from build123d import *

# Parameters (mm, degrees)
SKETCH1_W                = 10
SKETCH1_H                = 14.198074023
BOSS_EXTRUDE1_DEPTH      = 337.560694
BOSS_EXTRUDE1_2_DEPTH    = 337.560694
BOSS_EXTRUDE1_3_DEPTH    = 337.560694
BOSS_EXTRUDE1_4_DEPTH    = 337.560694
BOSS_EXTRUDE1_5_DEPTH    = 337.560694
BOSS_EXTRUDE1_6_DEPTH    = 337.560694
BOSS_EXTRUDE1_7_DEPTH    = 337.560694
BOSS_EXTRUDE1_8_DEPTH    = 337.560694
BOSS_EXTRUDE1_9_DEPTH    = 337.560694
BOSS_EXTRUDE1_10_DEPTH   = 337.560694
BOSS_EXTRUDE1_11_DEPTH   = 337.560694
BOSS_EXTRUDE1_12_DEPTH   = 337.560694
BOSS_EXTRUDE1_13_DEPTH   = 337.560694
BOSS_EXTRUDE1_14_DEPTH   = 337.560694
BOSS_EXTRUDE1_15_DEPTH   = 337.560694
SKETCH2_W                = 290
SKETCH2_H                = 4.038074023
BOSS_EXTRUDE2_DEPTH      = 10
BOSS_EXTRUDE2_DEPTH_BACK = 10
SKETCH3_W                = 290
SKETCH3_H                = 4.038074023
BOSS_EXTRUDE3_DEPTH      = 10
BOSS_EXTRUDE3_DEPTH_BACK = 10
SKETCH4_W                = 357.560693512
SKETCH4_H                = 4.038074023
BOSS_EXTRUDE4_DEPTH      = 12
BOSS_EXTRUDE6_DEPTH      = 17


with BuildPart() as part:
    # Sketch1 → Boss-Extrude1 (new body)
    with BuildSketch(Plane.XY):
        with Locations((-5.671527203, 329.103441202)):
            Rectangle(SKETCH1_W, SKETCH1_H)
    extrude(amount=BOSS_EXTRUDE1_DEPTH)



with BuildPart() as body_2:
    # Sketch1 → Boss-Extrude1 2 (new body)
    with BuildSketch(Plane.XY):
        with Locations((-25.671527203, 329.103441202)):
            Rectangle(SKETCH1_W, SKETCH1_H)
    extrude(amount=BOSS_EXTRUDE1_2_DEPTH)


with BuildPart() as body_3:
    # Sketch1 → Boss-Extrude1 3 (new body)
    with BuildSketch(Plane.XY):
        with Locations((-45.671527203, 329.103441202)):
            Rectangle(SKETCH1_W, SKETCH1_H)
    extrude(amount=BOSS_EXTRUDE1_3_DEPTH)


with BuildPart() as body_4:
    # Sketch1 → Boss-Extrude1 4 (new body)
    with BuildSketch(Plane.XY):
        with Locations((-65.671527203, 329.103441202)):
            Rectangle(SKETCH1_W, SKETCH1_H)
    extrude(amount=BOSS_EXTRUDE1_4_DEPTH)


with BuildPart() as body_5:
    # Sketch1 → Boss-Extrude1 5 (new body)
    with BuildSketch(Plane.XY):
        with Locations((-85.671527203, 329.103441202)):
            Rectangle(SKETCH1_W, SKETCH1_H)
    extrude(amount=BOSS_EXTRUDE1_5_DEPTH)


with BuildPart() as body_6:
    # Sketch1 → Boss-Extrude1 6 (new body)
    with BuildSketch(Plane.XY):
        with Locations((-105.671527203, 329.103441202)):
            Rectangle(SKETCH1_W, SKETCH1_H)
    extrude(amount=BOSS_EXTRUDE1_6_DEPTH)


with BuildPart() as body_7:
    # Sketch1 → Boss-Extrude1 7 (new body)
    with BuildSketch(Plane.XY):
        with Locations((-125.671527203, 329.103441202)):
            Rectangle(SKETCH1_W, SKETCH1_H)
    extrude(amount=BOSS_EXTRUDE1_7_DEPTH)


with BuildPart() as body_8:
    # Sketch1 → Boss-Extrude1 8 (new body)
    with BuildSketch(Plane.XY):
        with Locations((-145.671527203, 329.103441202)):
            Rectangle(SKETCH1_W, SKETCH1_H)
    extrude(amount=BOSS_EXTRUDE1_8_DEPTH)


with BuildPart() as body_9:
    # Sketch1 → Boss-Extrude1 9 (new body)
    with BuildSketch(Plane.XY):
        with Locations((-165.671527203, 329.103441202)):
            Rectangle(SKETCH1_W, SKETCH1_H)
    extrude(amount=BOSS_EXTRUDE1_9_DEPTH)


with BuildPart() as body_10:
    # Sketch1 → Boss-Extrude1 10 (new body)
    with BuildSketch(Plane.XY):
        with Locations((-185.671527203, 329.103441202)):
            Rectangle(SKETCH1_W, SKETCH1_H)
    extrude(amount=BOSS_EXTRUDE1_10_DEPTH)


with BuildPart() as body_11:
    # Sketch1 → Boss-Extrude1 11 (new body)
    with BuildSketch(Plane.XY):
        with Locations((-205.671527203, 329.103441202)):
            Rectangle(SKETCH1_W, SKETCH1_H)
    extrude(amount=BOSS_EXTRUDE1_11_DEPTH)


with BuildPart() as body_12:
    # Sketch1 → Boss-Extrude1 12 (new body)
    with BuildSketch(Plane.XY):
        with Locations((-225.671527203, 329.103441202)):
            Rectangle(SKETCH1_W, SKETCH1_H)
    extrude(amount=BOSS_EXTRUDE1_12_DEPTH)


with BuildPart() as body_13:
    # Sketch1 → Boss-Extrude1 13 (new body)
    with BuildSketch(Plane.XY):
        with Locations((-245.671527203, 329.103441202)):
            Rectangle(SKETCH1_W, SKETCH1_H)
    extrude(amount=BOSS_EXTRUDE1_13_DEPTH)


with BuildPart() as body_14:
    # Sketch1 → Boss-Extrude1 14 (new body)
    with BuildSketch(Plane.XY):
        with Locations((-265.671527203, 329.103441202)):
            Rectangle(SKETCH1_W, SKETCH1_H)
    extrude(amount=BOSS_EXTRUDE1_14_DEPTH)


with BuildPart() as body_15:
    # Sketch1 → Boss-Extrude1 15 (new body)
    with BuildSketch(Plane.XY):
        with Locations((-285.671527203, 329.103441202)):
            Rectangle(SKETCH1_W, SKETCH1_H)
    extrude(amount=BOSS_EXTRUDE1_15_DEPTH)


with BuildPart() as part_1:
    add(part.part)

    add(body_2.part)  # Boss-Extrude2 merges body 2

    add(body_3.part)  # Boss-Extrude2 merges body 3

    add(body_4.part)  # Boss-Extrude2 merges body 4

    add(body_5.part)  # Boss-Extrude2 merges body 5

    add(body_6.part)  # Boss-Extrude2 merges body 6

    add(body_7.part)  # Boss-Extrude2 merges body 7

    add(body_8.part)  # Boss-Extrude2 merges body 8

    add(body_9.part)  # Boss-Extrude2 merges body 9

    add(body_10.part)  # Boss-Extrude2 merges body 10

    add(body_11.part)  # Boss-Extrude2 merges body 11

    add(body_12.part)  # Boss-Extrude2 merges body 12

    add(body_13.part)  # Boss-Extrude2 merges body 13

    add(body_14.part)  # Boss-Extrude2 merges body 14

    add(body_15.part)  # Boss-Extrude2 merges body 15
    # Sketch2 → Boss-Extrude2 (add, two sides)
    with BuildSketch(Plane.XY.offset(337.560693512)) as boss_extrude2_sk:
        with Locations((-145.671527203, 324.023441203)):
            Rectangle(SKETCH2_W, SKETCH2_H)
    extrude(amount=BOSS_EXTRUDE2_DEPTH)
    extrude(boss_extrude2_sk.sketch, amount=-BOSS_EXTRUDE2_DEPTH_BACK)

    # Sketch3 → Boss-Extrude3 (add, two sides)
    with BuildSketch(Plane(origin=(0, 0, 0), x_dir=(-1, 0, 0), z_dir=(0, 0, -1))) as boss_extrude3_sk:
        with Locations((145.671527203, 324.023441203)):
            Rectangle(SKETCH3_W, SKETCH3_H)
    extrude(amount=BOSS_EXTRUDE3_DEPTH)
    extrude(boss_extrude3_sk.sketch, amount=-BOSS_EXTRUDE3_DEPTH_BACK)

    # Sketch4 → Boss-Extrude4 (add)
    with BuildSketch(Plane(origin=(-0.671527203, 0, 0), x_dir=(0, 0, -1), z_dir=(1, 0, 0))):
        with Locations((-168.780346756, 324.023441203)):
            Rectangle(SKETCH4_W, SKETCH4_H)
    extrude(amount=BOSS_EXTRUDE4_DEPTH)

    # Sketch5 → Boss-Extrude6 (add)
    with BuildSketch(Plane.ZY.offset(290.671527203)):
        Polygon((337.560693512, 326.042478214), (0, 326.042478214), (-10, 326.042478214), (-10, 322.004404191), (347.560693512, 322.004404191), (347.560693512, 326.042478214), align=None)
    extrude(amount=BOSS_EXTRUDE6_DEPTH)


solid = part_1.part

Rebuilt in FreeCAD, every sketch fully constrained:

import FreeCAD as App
import Part
import Sketcher
Q = App.Units.Quantity

doc = App.newDocument("Part")
body = doc.addObject("PartDesign::Body", "Body")

# Sketch on XY plane
sketch1 = body.newObject("Sketcher::SketchObject", "Sketch")
sketch1.AttachmentSupport = (doc.getObject("XY_Plane"), [""])
sketch1.MapMode = "FlatFace"
sketch1.addGeometry([
    Part.LineSegment(App.Vector(-10.671527, 336.202478, 0), App.Vector(-10.671527, 322.004404, 0)),
    Part.LineSegment(App.Vector(-10.671527, 322.004404, 0), App.Vector(-0.671527, 322.004404, 0)),
    Part.LineSegment(App.Vector(-0.671527, 322.004404, 0), App.Vector(-0.671527, 336.202478, 0)),
    Part.LineSegment(App.Vector(-0.671527, 336.202478, 0), App.Vector(-10.671527, 336.202478, 0)),
], False)
sketch1.addConstraint([
    Sketcher.Constraint("Coincident", 0, 2, 1, 1),
    Sketcher.Constraint("Coincident", 1, 2, 2, 1),
    Sketcher.Constraint("Coincident", 2, 2, 3, 1),
    Sketcher.Constraint("Coincident", 3, 2, 0, 1),
    Sketcher.Constraint("Vertical", 0),
    Sketcher.Constraint("Horizontal", 1),
    Sketcher.Constraint("Vertical", 2),
    Sketcher.Constraint("Horizontal", 3),
    Sketcher.Constraint("DistanceX", 1, 1, 1, 2, Q("10 mm")),
    Sketcher.Constraint("DistanceY", 0, 2, 0, 1, Q("14.198074 mm")),
    Sketcher.Constraint("DistanceY", -1, 1, 2, 2, Q("336.202478 mm")),
    Sketcher.Constraint("DistanceX", 0, 2, -1, 1, Q("10.671527 mm")),
])
pad1 = body.newObject("PartDesign::Pad", "Pad")
pad1.Profile = sketch1
pad1.Length = 337.560694
body2 = doc.addObject("PartDesign::Body", "Body001")

# Sketch on XY plane
sketch2 = body2.newObject("Sketcher::SketchObject", "Sketch001")
sketch2.AttachmentSupport = (doc.getObject("XY_Plane001"), [""])
sketch2.MapMode = "FlatFace"
sketch2.addGeometry([
    Part.LineSegment(App.Vector(-30.671527, 336.202478, 0), App.Vector(-30.671527, 322.004404, 0)),
    Part.LineSegment(App.Vector(-30.671527, 322.004404, 0), App.Vector(-20.671527, 322.004404, 0)),
    Part.LineSegment(App.Vector(-20.671527, 322.004404, 0), App.Vector(-20.671527, 336.202478, 0)),
    Part.LineSegment(App.Vector(-20.671527, 336.202478, 0), App.Vector(-30.671527, 336.202478, 0)),
], False)
sketch2.addConstraint([
    Sketcher.Constraint("Coincident", 0, 2, 1, 1),
    Sketcher.Constraint("Coincident", 1, 2, 2, 1),
    Sketcher.Constraint("Coincident", 2, 2, 3, 1),
    Sketcher.Constraint("Coincident", 3, 2, 0, 1),
    Sketcher.Constraint("Vertical", 0),
    Sketcher.Constraint("Horizontal", 1),
    Sketcher.Constraint("Vertical", 2),
    Sketcher.Constraint("Horizontal", 3),
    Sketcher.Constraint("DistanceX", 1, 1, 1, 2, Q("10 mm")),
    Sketcher.Constraint("DistanceY", 0, 2, 0, 1, Q("14.198074 mm")),
    Sketcher.Constraint("DistanceY", -1, 1, 2, 2, Q("336.202478 mm")),
    Sketcher.Constraint("DistanceX", 0, 2, -1, 1, Q("30.671527 mm")),
])
pad2 = body2.newObject("PartDesign::Pad", "Pad001")
pad2.Profile = sketch2
pad2.Length = 337.560694
body3 = doc.addObject("PartDesign::Body", "Body002")

# Sketch on XY plane
sketch3 = body3.newObject("Sketcher::SketchObject", "Sketch002")
sketch3.AttachmentSupport = (doc.getObject("XY_Plane002"), [""])
sketch3.MapMode = "FlatFace"
sketch3.addGeometry([
    Part.LineSegment(App.Vector(-50.671527, 336.202478, 0), App.Vector(-50.671527, 322.004404, 0)),
    Part.LineSegment(App.Vector(-50.671527, 322.004404, 0), App.Vector(-40.671527, 322.004404, 0)),
    Part.LineSegment(App.Vector(-40.671527, 322.004404, 0), App.Vector(-40.671527, 336.202478, 0)),
    Part.LineSegment(App.Vector(-40.671527, 336.202478, 0), App.Vector(-50.671527, 336.202478, 0)),
], False)
sketch3.addConstraint([
    Sketcher.Constraint("Coincident", 0, 2, 1, 1),
    Sketcher.Constraint("Coincident", 1, 2, 2, 1),
    Sketcher.Constraint("Coincident", 2, 2, 3, 1),
    Sketcher.Constraint("Coincident", 3, 2, 0, 1),
    Sketcher.Constraint("Vertical", 0),
    Sketcher.Constraint("Horizontal", 1),
    Sketcher.Constraint("Vertical", 2),
    Sketcher.Constraint("Horizontal", 3),
    Sketcher.Constraint("DistanceX", 1, 1, 1, 2, Q("10 mm")),
    Sketcher.Constraint("DistanceY", 0, 2, 0, 1, Q("14.198074 mm")),
    Sketcher.Constraint("DistanceY", -1, 1, 2, 2, Q("336.202478 mm")),
    Sketcher.Constraint("DistanceX", 0, 2, -1, 1, Q("50.671527 mm")),
])
pad3 = body3.newObject("PartDesign::Pad", "Pad002")
pad3.Profile = sketch3
pad3.Length = 337.560694
body4 = doc.addObject("PartDesign::Body", "Body003")

# Sketch on XY plane
sketch4 = body4.newObject("Sketcher::SketchObject", "Sketch003")
sketch4.AttachmentSupport = (doc.getObject("XY_Plane003"), [""])
sketch4.MapMode = "FlatFace"
sketch4.addGeometry([
    Part.LineSegment(App.Vector(-70.671527, 336.202478, 0), App.Vector(-70.671527, 322.004404, 0)),
    Part.LineSegment(App.Vector(-70.671527, 322.004404, 0), App.Vector(-60.671527, 322.004404, 0)),
    Part.LineSegment(App.Vector(-60.671527, 322.004404, 0), App.Vector(-60.671527, 336.202478, 0)),
    Part.LineSegment(App.Vector(-60.671527, 336.202478, 0), App.Vector(-70.671527, 336.202478, 0)),
], False)
sketch4.addConstraint([
    Sketcher.Constraint("Coincident", 0, 2, 1, 1),
    Sketcher.Constraint("Coincident", 1, 2, 2, 1),
    Sketcher.Constraint("Coincident", 2, 2, 3, 1),
    Sketcher.Constraint("Coincident", 3, 2, 0, 1),
    Sketcher.Constraint("Vertical", 0),
    Sketcher.Constraint("Horizontal", 1),
    Sketcher.Constraint("Vertical", 2),
    Sketcher.Constraint("Horizontal", 3),
    Sketcher.Constraint("DistanceX", 1, 1, 1, 2, Q("10 mm")),
    Sketcher.Constraint("DistanceY", 0, 2, 0, 1, Q("14.198074 mm")),
    Sketcher.Constraint("DistanceY", -1, 1, 2, 2, Q("336.202478 mm")),
    Sketcher.Constraint("DistanceX", 0, 2, -1, 1, Q("70.671527 mm")),
])
pad4 = body4.newObject("PartDesign::Pad", "Pad003")
pad4.Profile = sketch4
pad4.Length = 337.560694
body5 = doc.addObject("PartDesign::Body", "Body004")

# Sketch on XY plane
sketch5 = body5.newObject("Sketcher::SketchObject", "Sketch004")
sketch5.AttachmentSupport = (doc.getObject("XY_Plane004"), [""])
sketch5.MapMode = "FlatFace"
sketch5.addGeometry([
    Part.LineSegment(App.Vector(-90.671527, 336.202478, 0), App.Vector(-90.671527, 322.004404, 0)),
    Part.LineSegment(App.Vector(-90.671527, 322.004404, 0), App.Vector(-80.671527, 322.004404, 0)),
    Part.LineSegment(App.Vector(-80.671527, 322.004404, 0), App.Vector(-80.671527, 336.202478, 0)),
    Part.LineSegment(App.Vector(-80.671527, 336.202478, 0), App.Vector(-90.671527, 336.202478, 0)),
], False)
sketch5.addConstraint([
    Sketcher.Constraint("Coincident", 0, 2, 1, 1),
    Sketcher.Constraint("Coincident", 1, 2, 2, 1),
    Sketcher.Constraint("Coincident", 2, 2, 3, 1),
    Sketcher.Constraint("Coincident", 3, 2, 0, 1),
    Sketcher.Constraint("Vertical", 0),
    Sketcher.Constraint("Horizontal", 1),
    Sketcher.Constraint("Vertical", 2),
    Sketcher.Constraint("Horizontal", 3),
    Sketcher.Constraint("DistanceX", 1, 1, 1, 2, Q("10 mm")),
    Sketcher.Constraint("DistanceY", 0, 2, 0, 1, Q("14.198074 mm")),
    Sketcher.Constraint("DistanceY", -1, 1, 2, 2, Q("336.202478 mm")),
    Sketcher.Constraint("DistanceX", 0, 2, -1, 1, Q("90.671527 mm")),
])
pad5 = body5.newObject("PartDesign::Pad", "Pad004")
pad5.Profile = sketch5
pad5.Length = 337.560694
body6 = doc.addObject("PartDesign::Body", "Body005")

# Sketch on XY plane
sketch6 = body6.newObject("Sketcher::SketchObject", "Sketch005")
sketch6.AttachmentSupport = (doc.getObject("XY_Plane005"), [""])
sketch6.MapMode = "FlatFace"
sketch6.addGeometry([
    Part.LineSegment(App.Vector(-110.671527, 336.202478, 0), App.Vector(-110.671527, 322.004404, 0)),
    Part.LineSegment(App.Vector(-110.671527, 322.004404, 0), App.Vector(-100.671527, 322.004404, 0)),
    Part.LineSegment(App.Vector(-100.671527, 322.004404, 0), App.Vector(-100.671527, 336.202478, 0)),
    Part.LineSegment(App.Vector(-100.671527, 336.202478, 0), App.Vector(-110.671527, 336.202478, 0)),
], False)
sketch6.addConstraint([
    Sketcher.Constraint("Coincident", 0, 2, 1, 1),
    Sketcher.Constraint("Coincident", 1, 2, 2, 1),
    Sketcher.Constraint("Coincident", 2, 2, 3, 1),
    Sketcher.Constraint("Coincident", 3, 2, 0, 1),
    Sketcher.Constraint("Vertical", 0),
    Sketcher.Constraint("Horizontal", 1),
    Sketcher.Constraint("Vertical", 2),
    Sketcher.Constraint("Horizontal", 3),
    Sketcher.Constraint("DistanceX", 1, 1, 1, 2, Q("10 mm")),
    Sketcher.Constraint("DistanceY", 0, 2, 0, 1, Q("14.198074 mm")),
    Sketcher.Constraint("DistanceY", -1, 1, 2, 2, Q("336.202478 mm")),
    Sketcher.Constraint("DistanceX", 0, 2, -1, 1, Q("110.671527 mm")),
])
pad6 = body6.newObject("PartDesign::Pad", "Pad005")
pad6.Profile = sketch6
pad6.Length = 337.560694
body7 = doc.addObject("PartDesign::Body", "Body006")

# Sketch on XY plane
sketch7 = body7.newObject("Sketcher::SketchObject", "Sketch006")
sketch7.AttachmentSupport = (doc.getObject("XY_Plane006"), [""])
sketch7.MapMode = "FlatFace"
sketch7.addGeometry([
    Part.LineSegment(App.Vector(-130.671527, 336.202478, 0), App.Vector(-130.671527, 322.004404, 0)),
    Part.LineSegment(App.Vector(-130.671527, 322.004404, 0), App.Vector(-120.671527, 322.004404, 0)),
    Part.LineSegment(App.Vector(-120.671527, 322.004404, 0), App.Vector(-120.671527, 336.202478, 0)),
    Part.LineSegment(App.Vector(-120.671527, 336.202478, 0), App.Vector(-130.671527, 336.202478, 0)),
], False)
sketch7.addConstraint([
    Sketcher.Constraint("Coincident", 0, 2, 1, 1),
    Sketcher.Constraint("Coincident", 1, 2, 2, 1),
    Sketcher.Constraint("Coincident", 2, 2, 3, 1),
    Sketcher.Constraint("Coincident", 3, 2, 0, 1),
    Sketcher.Constraint("Vertical", 0),
    Sketcher.Constraint("Horizontal", 1),
    Sketcher.Constraint("Vertical", 2),
    Sketcher.Constraint("Horizontal", 3),
    Sketcher.Constraint("DistanceX", 1, 1, 1, 2, Q("10 mm")),
    Sketcher.Constraint("DistanceY", 0, 2, 0, 1, Q("14.198074 mm")),
    Sketcher.Constraint("DistanceY", -1, 1, 2, 2, Q("336.202478 mm")),
    Sketcher.Constraint("DistanceX", 0, 2, -1, 1, Q("130.671527 mm")),
])
pad7 = body7.newObject("PartDesign::Pad", "Pad006")
pad7.Profile = sketch7
pad7.Length = 337.560694
body8 = doc.addObject("PartDesign::Body", "Body007")

# Sketch on XY plane
sketch8 = body8.newObject("Sketcher::SketchObject", "Sketch007")
sketch8.AttachmentSupport = (doc.getObject("XY_Plane007"), [""])
sketch8.MapMode = "FlatFace"
sketch8.addGeometry([
    Part.LineSegment(App.Vector(-150.671527, 336.202478, 0), App.Vector(-150.671527, 322.004404, 0)),
    Part.LineSegment(App.Vector(-150.671527, 322.004404, 0), App.Vector(-140.671527, 322.004404, 0)),
    Part.LineSegment(App.Vector(-140.671527, 322.004404, 0), App.Vector(-140.671527, 336.202478, 0)),
    Part.LineSegment(App.Vector(-140.671527, 336.202478, 0), App.Vector(-150.671527, 336.202478, 0)),
], False)
sketch8.addConstraint([
    Sketcher.Constraint("Coincident", 0, 2, 1, 1),
    Sketcher.Constraint("Coincident", 1, 2, 2, 1),
    Sketcher.Constraint("Coincident", 2, 2, 3, 1),
    Sketcher.Constraint("Coincident", 3, 2, 0, 1),
    Sketcher.Constraint("Vertical", 0),
    Sketcher.Constraint("Horizontal", 1),
    Sketcher.Constraint("Vertical", 2),
    Sketcher.Constraint("Horizontal", 3),
    Sketcher.Constraint("DistanceX", 1, 1, 1, 2, Q("10 mm")),
    Sketcher.Constraint("DistanceY", 0, 2, 0, 1, Q("14.198074 mm")),
    Sketcher.Constraint("DistanceY", -1, 1, 2, 2, Q("336.202478 mm")),
    Sketcher.Constraint("DistanceX", 0, 2, -1, 1, Q("150.671527 mm")),
])
pad8 = body8.newObject("PartDesign::Pad", "Pad007")
pad8.Profile = sketch8
pad8.Length = 337.560694
body9 = doc.addObject("PartDesign::Body", "Body008")

# Sketch on XY plane
sketch9 = body9.newObject("Sketcher::SketchObject", "Sketch008")
sketch9.AttachmentSupport = (doc.getObject("XY_Plane008"), [""])
sketch9.MapMode = "FlatFace"
sketch9.addGeometry([
    Part.LineSegment(App.Vector(-170.671527, 336.202478, 0), App.Vector(-170.671527, 322.004404, 0)),
    Part.LineSegment(App.Vector(-170.671527, 322.004404, 0), App.Vector(-160.671527, 322.004404, 0)),
    Part.LineSegment(App.Vector(-160.671527, 322.004404, 0), App.Vector(-160.671527, 336.202478, 0)),
    Part.LineSegment(App.Vector(-160.671527, 336.202478, 0), App.Vector(-170.671527, 336.202478, 0)),
], False)
sketch9.addConstraint([
    Sketcher.Constraint("Coincident", 0, 2, 1, 1),
    Sketcher.Constraint("Coincident", 1, 2, 2, 1),
    Sketcher.Constraint("Coincident", 2, 2, 3, 1),
    Sketcher.Constraint("Coincident", 3, 2, 0, 1),
    Sketcher.Constraint("Vertical", 0),
    Sketcher.Constraint("Horizontal", 1),
    Sketcher.Constraint("Vertical", 2),
    Sketcher.Constraint("Horizontal", 3),
    Sketcher.Constraint("DistanceX", 1, 1, 1, 2, Q("10 mm")),
    Sketcher.Constraint("DistanceY", 0, 2, 0, 1, Q("14.198074 mm")),
    Sketcher.Constraint("DistanceY", -1, 1, 2, 2, Q("336.202478 mm")),
    Sketcher.Constraint("DistanceX", 0, 2, -1, 1, Q("170.671527 mm")),
])
pad9 = body9.newObject("PartDesign::Pad", "Pad008")
pad9.Profile = sketch9
pad9.Length = 337.560694
body10 = doc.addObject("PartDesign::Body", "Body009")

# Sketch on XY plane
sketch10 = body10.newObject("Sketcher::SketchObject", "Sketch009")
sketch10.AttachmentSupport = (doc.getObject("XY_Plane009"), [""])
sketch10.MapMode = "FlatFace"
sketch10.addGeometry([
    Part.LineSegment(App.Vector(-190.671527, 336.202478, 0), App.Vector(-190.671527, 322.004404, 0)),
    Part.LineSegment(App.Vector(-190.671527, 322.004404, 0), App.Vector(-180.671527, 322.004404, 0)),
    Part.LineSegment(App.Vector(-180.671527, 322.004404, 0), App.Vector(-180.671527, 336.202478, 0)),
    Part.LineSegment(App.Vector(-180.671527, 336.202478, 0), App.Vector(-190.671527, 336.202478, 0)),
], False)
sketch10.addConstraint([
    Sketcher.Constraint("Coincident", 0, 2, 1, 1),
    Sketcher.Constraint("Coincident", 1, 2, 2, 1),
    Sketcher.Constraint("Coincident", 2, 2, 3, 1),
    Sketcher.Constraint("Coincident", 3, 2, 0, 1),
    Sketcher.Constraint("Vertical", 0),
    Sketcher.Constraint("Horizontal", 1),
    Sketcher.Constraint("Vertical", 2),
    Sketcher.Constraint("Horizontal", 3),
    Sketcher.Constraint("DistanceX", 1, 1, 1, 2, Q("10 mm")),
    Sketcher.Constraint("DistanceY", 0, 2, 0, 1, Q("14.198074 mm")),
    Sketcher.Constraint("DistanceY", -1, 1, 2, 2, Q("336.202478 mm")),
    Sketcher.Constraint("DistanceX", 0, 2, -1, 1, Q("190.671527 mm")),
])
pad10 = body10.newObject("PartDesign::Pad", "Pad009")
pad10.Profile = sketch10
pad10.Length = 337.560694
body11 = doc.addObject("PartDesign::Body", "Body010")

# Sketch on XY plane
sketch11 = body11.newObject("Sketcher::SketchObject", "Sketch010")
sketch11.AttachmentSupport = (doc.getObject("XY_Plane010"), [""])
sketch11.MapMode = "FlatFace"
sketch11.addGeometry([
    Part.LineSegment(App.Vector(-210.671527, 336.202478, 0), App.Vector(-210.671527, 322.004404, 0)),
    Part.LineSegment(App.Vector(-210.671527, 322.004404, 0), App.Vector(-200.671527, 322.004404, 0)),
    Part.LineSegment(App.Vector(-200.671527, 322.004404, 0), App.Vector(-200.671527, 336.202478, 0)),
    Part.LineSegment(App.Vector(-200.671527, 336.202478, 0), App.Vector(-210.671527, 336.202478, 0)),
], False)
sketch11.addConstraint([
    Sketcher.Constraint("Coincident", 0, 2, 1, 1),
    Sketcher.Constraint("Coincident", 1, 2, 2, 1),
    Sketcher.Constraint("Coincident", 2, 2, 3, 1),
    Sketcher.Constraint("Coincident", 3, 2, 0, 1),
    Sketcher.Constraint("Vertical", 0),
    Sketcher.Constraint("Horizontal", 1),
    Sketcher.Constraint("Vertical", 2),
    Sketcher.Constraint("Horizontal", 3),
    Sketcher.Constraint("DistanceX", 1, 1, 1, 2, Q("10 mm")),
    Sketcher.Constraint("DistanceY", 0, 2, 0, 1, Q("14.198074 mm")),
    Sketcher.Constraint("DistanceY", -1, 1, 2, 2, Q("336.202478 mm")),
    Sketcher.Constraint("DistanceX", 0, 2, -1, 1, Q("210.671527 mm")),
])
pad11 = body11.newObject("PartDesign::Pad", "Pad010")
pad11.Profile = sketch11
pad11.Length = 337.560694
body12 = doc.addObject("PartDesign::Body", "Body011")

# Sketch on XY plane
sketch12 = body12.newObject("Sketcher::SketchObject", "Sketch011")
sketch12.AttachmentSupport = (doc.getObject("XY_Plane011"), [""])
sketch12.MapMode = "FlatFace"
sketch12.addGeometry([
    Part.LineSegment(App.Vector(-230.671527, 336.202478, 0), App.Vector(-230.671527, 322.004404, 0)),
    Part.LineSegment(App.Vector(-230.671527, 322.004404, 0), App.Vector(-220.671527, 322.004404, 0)),
    Part.LineSegment(App.Vector(-220.671527, 322.004404, 0), App.Vector(-220.671527, 336.202478, 0)),
    Part.LineSegment(App.Vector(-220.671527, 336.202478, 0), App.Vector(-230.671527, 336.202478, 0)),
], False)
sketch12.addConstraint([
    Sketcher.Constraint("Coincident", 0, 2, 1, 1),
    Sketcher.Constraint("Coincident", 1, 2, 2, 1),
    Sketcher.Constraint("Coincident", 2, 2, 3, 1),
    Sketcher.Constraint("Coincident", 3, 2, 0, 1),
    Sketcher.Constraint("Vertical", 0),
    Sketcher.Constraint("Horizontal", 1),
    Sketcher.Constraint("Vertical", 2),
    Sketcher.Constraint("Horizontal", 3),
    Sketcher.Constraint("DistanceX", 1, 1, 1, 2, Q("10 mm")),
    Sketcher.Constraint("DistanceY", 0, 2, 0, 1, Q("14.198074 mm")),
    Sketcher.Constraint("DistanceY", -1, 1, 2, 2, Q("336.202478 mm")),
    Sketcher.Constraint("DistanceX", 0, 2, -1, 1, Q("230.671527 mm")),
])
pad12 = body12.newObject("PartDesign::Pad", "Pad011")
pad12.Profile = sketch12
pad12.Length = 337.560694
body13 = doc.addObject("PartDesign::Body", "Body012")

# Sketch on XY plane
sketch13 = body13.newObject("Sketcher::SketchObject", "Sketch012")
sketch13.AttachmentSupport = (doc.getObject("XY_Plane012"), [""])
sketch13.MapMode = "FlatFace"
sketch13.addGeometry([
    Part.LineSegment(App.Vector(-250.671527, 336.202478, 0), App.Vector(-250.671527, 322.004404, 0)),
    Part.LineSegment(App.Vector(-250.671527, 322.004404, 0), App.Vector(-240.671527, 322.004404, 0)),
    Part.LineSegment(App.Vector(-240.671527, 322.004404, 0), App.Vector(-240.671527, 336.202478, 0)),
    Part.LineSegment(App.Vector(-240.671527, 336.202478, 0), App.Vector(-250.671527, 336.202478, 0)),
], False)
sketch13.addConstraint([
    Sketcher.Constraint("Coincident", 0, 2, 1, 1),
    Sketcher.Constraint("Coincident", 1, 2, 2, 1),
    Sketcher.Constraint("Coincident", 2, 2, 3, 1),
    Sketcher.Constraint("Coincident", 3, 2, 0, 1),
    Sketcher.Constraint("Vertical", 0),
    Sketcher.Constraint("Horizontal", 1),
    Sketcher.Constraint("Vertical", 2),
    Sketcher.Constraint("Horizontal", 3),
    Sketcher.Constraint("DistanceX", 1, 1, 1, 2, Q("10 mm")),
    Sketcher.Constraint("DistanceY", 0, 2, 0, 1, Q("14.198074 mm")),
    Sketcher.Constraint("DistanceY", -1, 1, 2, 2, Q("336.202478 mm")),
    Sketcher.Constraint("DistanceX", 0, 2, -1, 1, Q("250.671527 mm")),
])
pad13 = body13.newObject("PartDesign::Pad", "Pad012")
pad13.Profile = sketch13
pad13.Length = 337.560694
body14 = doc.addObject("PartDesign::Body", "Body013")

# Sketch on XY plane
sketch14 = body14.newObject("Sketcher::SketchObject", "Sketch013")
sketch14.AttachmentSupport = (doc.getObject("XY_Plane013"), [""])
sketch14.MapMode = "FlatFace"
sketch14.addGeometry([
    Part.LineSegment(App.Vector(-270.671527, 336.202478, 0), App.Vector(-270.671527, 322.004404, 0)),
    Part.LineSegment(App.Vector(-270.671527, 322.004404, 0), App.Vector(-260.671527, 322.004404, 0)),
    Part.LineSegment(App.Vector(-260.671527, 322.004404, 0), App.Vector(-260.671527, 336.202478, 0)),
    Part.LineSegment(App.Vector(-260.671527, 336.202478, 0), App.Vector(-270.671527, 336.202478, 0)),
], False)
sketch14.addConstraint([
    Sketcher.Constraint("Coincident", 0, 2, 1, 1),
    Sketcher.Constraint("Coincident", 1, 2, 2, 1),
    Sketcher.Constraint("Coincident", 2, 2, 3, 1),
    Sketcher.Constraint("Coincident", 3, 2, 0, 1),
    Sketcher.Constraint("Vertical", 0),
    Sketcher.Constraint("Horizontal", 1),
    Sketcher.Constraint("Vertical", 2),
    Sketcher.Constraint("Horizontal", 3),
    Sketcher.Constraint("DistanceX", 1, 1, 1, 2, Q("10 mm")),
    Sketcher.Constraint("DistanceY", 0, 2, 0, 1, Q("14.198074 mm")),
    Sketcher.Constraint("DistanceY", -1, 1, 2, 2, Q("336.202478 mm")),
    Sketcher.Constraint("DistanceX", 0, 2, -1, 1, Q("270.671527 mm")),
])
pad14 = body14.newObject("PartDesign::Pad", "Pad013")
pad14.Profile = sketch14
pad14.Length = 337.560694
body15 = doc.addObject("PartDesign::Body", "Body014")

# Sketch on XY plane
sketch15 = body15.newObject("Sketcher::SketchObject", "Sketch014")
sketch15.AttachmentSupport = (doc.getObject("XY_Plane014"), [""])
sketch15.MapMode = "FlatFace"
sketch15.addGeometry([
    Part.LineSegment(App.Vector(-290.671527, 336.202478, 0), App.Vector(-290.671527, 322.004404, 0)),
    Part.LineSegment(App.Vector(-290.671527, 322.004404, 0), App.Vector(-280.671527, 322.004404, 0)),
    Part.LineSegment(App.Vector(-280.671527, 322.004404, 0), App.Vector(-280.671527, 336.202478, 0)),
    Part.LineSegment(App.Vector(-280.671527, 336.202478, 0), App.Vector(-290.671527, 336.202478, 0)),
], False)
sketch15.addConstraint([
    Sketcher.Constraint("Coincident", 0, 2, 1, 1),
    Sketcher.Constraint("Coincident", 1, 2, 2, 1),
    Sketcher.Constraint("Coincident", 2, 2, 3, 1),
    Sketcher.Constraint("Coincident", 3, 2, 0, 1),
    Sketcher.Constraint("Vertical", 0),
    Sketcher.Constraint("Horizontal", 1),
    Sketcher.Constraint("Vertical", 2),
    Sketcher.Constraint("Horizontal", 3),
    Sketcher.Constraint("DistanceX", 1, 1, 1, 2, Q("10 mm")),
    Sketcher.Constraint("DistanceY", 0, 2, 0, 1, Q("14.198074 mm")),
    Sketcher.Constraint("DistanceY", -1, 1, 2, 2, Q("336.202478 mm")),
    Sketcher.Constraint("DistanceX", 0, 2, -1, 1, Q("290.671527 mm")),
])
pad15 = body15.newObject("PartDesign::Pad", "Pad014")
pad15.Profile = sketch15
pad15.Length = 337.560694
body.AllowCompound = True
doc.recompute()

boolean = body.newObject("PartDesign::Boolean", "Boolean")
boolean.Type = "Fuse"
boolean.addObjects([body2])
doc.recompute()

boolean2 = body.newObject("PartDesign::Boolean", "Boolean001")
boolean2.Type = "Fuse"
boolean2.addObjects([body3])
doc.recompute()

boolean3 = body.newObject("PartDesign::Boolean", "Boolean002")
boolean3.Type = "Fuse"
boolean3.addObjects([body4])
doc.recompute()

boolean4 = body.newObject("PartDesign::Boolean", "Boolean003")
boolean4.Type = "Fuse"
boolean4.addObjects([body5])
doc.recompute()

boolean5 = body.newObject("PartDesign::Boolean", "Boolean004")
boolean5.Type = "Fuse"
boolean5.addObjects([body6])
doc.recompute()

boolean6 = body.newObject("PartDesign::Boolean", "Boolean005")
boolean6.Type = "Fuse"
boolean6.addObjects([body7])
doc.recompute()

boolean7 = body.newObject("PartDesign::Boolean", "Boolean006")
boolean7.Type = "Fuse"
boolean7.addObjects([body8])
doc.recompute()

boolean8 = body.newObject("PartDesign::Boolean", "Boolean007")
boolean8.Type = "Fuse"
boolean8.addObjects([body9])
doc.recompute()

boolean9 = body.newObject("PartDesign::Boolean", "Boolean008")
boolean9.Type = "Fuse"
boolean9.addObjects([body10])
doc.recompute()

boolean10 = body.newObject("PartDesign::Boolean", "Boolean009")
boolean10.Type = "Fuse"
boolean10.addObjects([body11])
doc.recompute()

boolean11 = body.newObject("PartDesign::Boolean", "Boolean010")
boolean11.Type = "Fuse"
boolean11.addObjects([body12])
doc.recompute()

boolean12 = body.newObject("PartDesign::Boolean", "Boolean011")
boolean12.Type = "Fuse"
boolean12.addObjects([body13])
doc.recompute()

boolean13 = body.newObject("PartDesign::Boolean", "Boolean012")
boolean13.Type = "Fuse"
boolean13.addObjects([body14])
doc.recompute()

boolean14 = body.newObject("PartDesign::Boolean", "Boolean013")
boolean14.Type = "Fuse"
boolean14.addObjects([body15])

# Sketch on XY plane
sketch16 = body.newObject("Sketcher::SketchObject", "Sketch015")
sketch16.AttachmentSupport = (doc.getObject("XY_Plane"), [""])
sketch16.MapMode = "FlatFace"
sketch16.AttachmentOffset = App.Placement(App.Vector(0, 0, 337.560694), App.Rotation())
sketch16.addGeometry([
    Part.LineSegment(App.Vector(-290.671527, 326.042478, 0), App.Vector(-290.671527, 322.004404, 0)),
    Part.LineSegment(App.Vector(-290.671527, 322.004404, 0), App.Vector(-0.671527, 322.004404, 0)),
    Part.LineSegment(App.Vector(-0.671527, 322.004404, 0), App.Vector(-0.671527, 326.042478, 0)),
    Part.LineSegment(App.Vector(-0.671527, 326.042478, 0), App.Vector(-290.671527, 326.042478, 0)),
], False)
sketch16.addConstraint([
    Sketcher.Constraint("Coincident", 0, 2, 1, 1),
    Sketcher.Constraint("Coincident", 1, 2, 2, 1),
    Sketcher.Constraint("Coincident", 2, 2, 3, 1),
    Sketcher.Constraint("Coincident", 3, 2, 0, 1),
    Sketcher.Constraint("Vertical", 0),
    Sketcher.Constraint("Horizontal", 1),
    Sketcher.Constraint("Vertical", 2),
    Sketcher.Constraint("Horizontal", 3),
    Sketcher.Constraint("DistanceX", 1, 1, 1, 2, Q("290 mm")),
    Sketcher.Constraint("DistanceY", 0, 2, 0, 1, Q("4.038074 mm")),
    Sketcher.Constraint("DistanceY", -1, 1, 2, 2, Q("326.042478 mm")),
    Sketcher.Constraint("DistanceX", 0, 2, -1, 1, Q("290.671527 mm")),
])
pad16 = body.newObject("PartDesign::Pad", "Pad015")
pad16.Profile = sketch16
pad16.Type = "TwoLengths"
pad16.Length = 10
pad16.Length2 = 10

# Sketch on XY plane
sketch17 = body.newObject("Sketcher::SketchObject", "Sketch016")
sketch17.AttachmentSupport = (doc.getObject("XY_Plane"), [""])
sketch17.MapMode = "FlatFace"
sketch17.addGeometry([
    Part.LineSegment(App.Vector(-0.671527, 326.042478, 0), App.Vector(-0.671527, 322.004404, 0)),
    Part.LineSegment(App.Vector(-0.671527, 322.004404, 0), App.Vector(-290.671527, 322.004404, 0)),
    Part.LineSegment(App.Vector(-290.671527, 322.004404, 0), App.Vector(-290.671527, 326.042478, 0)),
    Part.LineSegment(App.Vector(-290.671527, 326.042478, 0), App.Vector(-0.671527, 326.042478, 0)),
], False)
sketch17.addConstraint([
    Sketcher.Constraint("Coincident", 0, 2, 1, 1),
    Sketcher.Constraint("Coincident", 1, 2, 2, 1),
    Sketcher.Constraint("Coincident", 2, 2, 3, 1),
    Sketcher.Constraint("Coincident", 3, 2, 0, 1),
    Sketcher.Constraint("Vertical", 0),
    Sketcher.Constraint("Horizontal", 1),
    Sketcher.Constraint("Vertical", 2),
    Sketcher.Constraint("Horizontal", 3),
    Sketcher.Constraint("DistanceX", 1, 2, 1, 1, Q("290 mm")),
    Sketcher.Constraint("DistanceY", 0, 2, 0, 1, Q("4.038074 mm")),
    Sketcher.Constraint("DistanceY", -1, 1, 2, 2, Q("326.042478 mm")),
    Sketcher.Constraint("DistanceX", 0, 2, -1, 1, Q("0.671527 mm")),
])
pad17 = body.newObject("PartDesign::Pad", "Pad016")
pad17.Profile = sketch17
pad17.Type = "TwoLengths"
pad17.Length = 10
pad17.Length2 = 10
pad17.Reversed = True

# Sketch on YZ plane
sketch18 = body.newObject("Sketcher::SketchObject", "Sketch017")
sketch18.AttachmentSupport = (doc.getObject("YZ_Plane"), [""])
sketch18.MapMode = "FlatFace"
sketch18.AttachmentOffset = App.Placement(App.Vector(0, 0, -0.671527), App.Rotation())
sketch18.addGeometry([
    Part.LineSegment(App.Vector(326.042478, 347.560694, 0), App.Vector(322.004404, 347.560694, 0)),
    Part.LineSegment(App.Vector(322.004404, 347.560694, 0), App.Vector(322.004404, -10, 0)),
    Part.LineSegment(App.Vector(322.004404, -10, 0), App.Vector(326.042478, -10, 0)),
    Part.LineSegment(App.Vector(326.042478, -10, 0), App.Vector(326.042478, 347.560694, 0)),
], False)
sketch18.addConstraint([
    Sketcher.Constraint("Coincident", 0, 2, 1, 1),
    Sketcher.Constraint("Coincident", 1, 2, 2, 1),
    Sketcher.Constraint("Coincident", 2, 2, 3, 1),
    Sketcher.Constraint("Coincident", 3, 2, 0, 1),
    Sketcher.Constraint("Horizontal", 0),
    Sketcher.Constraint("Vertical", 1),
    Sketcher.Constraint("Horizontal", 2),
    Sketcher.Constraint("Vertical", 3),
    Sketcher.Constraint("DistanceY", 1, 2, -1, 1, Q("10 mm")),
    Sketcher.Constraint("DistanceX", 0, 2, 0, 1, Q("4.038074 mm")),
    Sketcher.Constraint("DistanceY", 1, 2, 1, 1, Q("357.560694 mm")),
    Sketcher.Constraint("DistanceX", -1, 1, 2, 2, Q("326.042478 mm")),
])
pad18 = body.newObject("PartDesign::Pad", "Pad017")
pad18.Profile = sketch18
pad18.Length = 12

# Sketch on YZ plane
sketch19 = body.newObject("Sketcher::SketchObject", "Sketch018")
sketch19.AttachmentSupport = (doc.getObject("YZ_Plane"), [""])
sketch19.MapMode = "FlatFace"
sketch19.AttachmentOffset = App.Placement(App.Vector(0, 0, -290.671527), App.Rotation())
sketch19.addGeometry([
    Part.LineSegment(App.Vector(326.042478, -10, 0), App.Vector(322.004404, -10, 0)),
    Part.LineSegment(App.Vector(322.004404, -10, 0), App.Vector(322.004404, 347.560694, 0)),
    Part.LineSegment(App.Vector(322.004404, 347.560694, 0), App.Vector(326.042478, 347.560694, 0)),
    Part.LineSegment(App.Vector(326.042478, 347.560694, 0), App.Vector(326.042478, -10, 0)),
], False)
sketch19.addConstraint([
    Sketcher.Constraint("Coincident", 0, 2, 1, 1),
    Sketcher.Constraint("Coincident", 1, 2, 2, 1),
    Sketcher.Constraint("Coincident", 2, 2, 3, 1),
    Sketcher.Constraint("Coincident", 3, 2, 0, 1),
    Sketcher.Constraint("Horizontal", 0),
    Sketcher.Constraint("Vertical", 1),
    Sketcher.Constraint("Horizontal", 2),
    Sketcher.Constraint("Vertical", 3),
    Sketcher.Constraint("DistanceY", 0, 2, -1, 1, Q("10 mm")),
    Sketcher.Constraint("DistanceX", 0, 2, 0, 1, Q("4.038074 mm")),
    Sketcher.Constraint("DistanceY", 1, 1, 1, 2, Q("357.560694 mm")),
    Sketcher.Constraint("DistanceX", -1, 1, 2, 2, Q("326.042478 mm")),
])
pad19 = body.newObject("PartDesign::Pad", "Pad018")
pad19.Profile = sketch19
pad19.Length = 17
pad19.Reversed = True

doc.recompute()
